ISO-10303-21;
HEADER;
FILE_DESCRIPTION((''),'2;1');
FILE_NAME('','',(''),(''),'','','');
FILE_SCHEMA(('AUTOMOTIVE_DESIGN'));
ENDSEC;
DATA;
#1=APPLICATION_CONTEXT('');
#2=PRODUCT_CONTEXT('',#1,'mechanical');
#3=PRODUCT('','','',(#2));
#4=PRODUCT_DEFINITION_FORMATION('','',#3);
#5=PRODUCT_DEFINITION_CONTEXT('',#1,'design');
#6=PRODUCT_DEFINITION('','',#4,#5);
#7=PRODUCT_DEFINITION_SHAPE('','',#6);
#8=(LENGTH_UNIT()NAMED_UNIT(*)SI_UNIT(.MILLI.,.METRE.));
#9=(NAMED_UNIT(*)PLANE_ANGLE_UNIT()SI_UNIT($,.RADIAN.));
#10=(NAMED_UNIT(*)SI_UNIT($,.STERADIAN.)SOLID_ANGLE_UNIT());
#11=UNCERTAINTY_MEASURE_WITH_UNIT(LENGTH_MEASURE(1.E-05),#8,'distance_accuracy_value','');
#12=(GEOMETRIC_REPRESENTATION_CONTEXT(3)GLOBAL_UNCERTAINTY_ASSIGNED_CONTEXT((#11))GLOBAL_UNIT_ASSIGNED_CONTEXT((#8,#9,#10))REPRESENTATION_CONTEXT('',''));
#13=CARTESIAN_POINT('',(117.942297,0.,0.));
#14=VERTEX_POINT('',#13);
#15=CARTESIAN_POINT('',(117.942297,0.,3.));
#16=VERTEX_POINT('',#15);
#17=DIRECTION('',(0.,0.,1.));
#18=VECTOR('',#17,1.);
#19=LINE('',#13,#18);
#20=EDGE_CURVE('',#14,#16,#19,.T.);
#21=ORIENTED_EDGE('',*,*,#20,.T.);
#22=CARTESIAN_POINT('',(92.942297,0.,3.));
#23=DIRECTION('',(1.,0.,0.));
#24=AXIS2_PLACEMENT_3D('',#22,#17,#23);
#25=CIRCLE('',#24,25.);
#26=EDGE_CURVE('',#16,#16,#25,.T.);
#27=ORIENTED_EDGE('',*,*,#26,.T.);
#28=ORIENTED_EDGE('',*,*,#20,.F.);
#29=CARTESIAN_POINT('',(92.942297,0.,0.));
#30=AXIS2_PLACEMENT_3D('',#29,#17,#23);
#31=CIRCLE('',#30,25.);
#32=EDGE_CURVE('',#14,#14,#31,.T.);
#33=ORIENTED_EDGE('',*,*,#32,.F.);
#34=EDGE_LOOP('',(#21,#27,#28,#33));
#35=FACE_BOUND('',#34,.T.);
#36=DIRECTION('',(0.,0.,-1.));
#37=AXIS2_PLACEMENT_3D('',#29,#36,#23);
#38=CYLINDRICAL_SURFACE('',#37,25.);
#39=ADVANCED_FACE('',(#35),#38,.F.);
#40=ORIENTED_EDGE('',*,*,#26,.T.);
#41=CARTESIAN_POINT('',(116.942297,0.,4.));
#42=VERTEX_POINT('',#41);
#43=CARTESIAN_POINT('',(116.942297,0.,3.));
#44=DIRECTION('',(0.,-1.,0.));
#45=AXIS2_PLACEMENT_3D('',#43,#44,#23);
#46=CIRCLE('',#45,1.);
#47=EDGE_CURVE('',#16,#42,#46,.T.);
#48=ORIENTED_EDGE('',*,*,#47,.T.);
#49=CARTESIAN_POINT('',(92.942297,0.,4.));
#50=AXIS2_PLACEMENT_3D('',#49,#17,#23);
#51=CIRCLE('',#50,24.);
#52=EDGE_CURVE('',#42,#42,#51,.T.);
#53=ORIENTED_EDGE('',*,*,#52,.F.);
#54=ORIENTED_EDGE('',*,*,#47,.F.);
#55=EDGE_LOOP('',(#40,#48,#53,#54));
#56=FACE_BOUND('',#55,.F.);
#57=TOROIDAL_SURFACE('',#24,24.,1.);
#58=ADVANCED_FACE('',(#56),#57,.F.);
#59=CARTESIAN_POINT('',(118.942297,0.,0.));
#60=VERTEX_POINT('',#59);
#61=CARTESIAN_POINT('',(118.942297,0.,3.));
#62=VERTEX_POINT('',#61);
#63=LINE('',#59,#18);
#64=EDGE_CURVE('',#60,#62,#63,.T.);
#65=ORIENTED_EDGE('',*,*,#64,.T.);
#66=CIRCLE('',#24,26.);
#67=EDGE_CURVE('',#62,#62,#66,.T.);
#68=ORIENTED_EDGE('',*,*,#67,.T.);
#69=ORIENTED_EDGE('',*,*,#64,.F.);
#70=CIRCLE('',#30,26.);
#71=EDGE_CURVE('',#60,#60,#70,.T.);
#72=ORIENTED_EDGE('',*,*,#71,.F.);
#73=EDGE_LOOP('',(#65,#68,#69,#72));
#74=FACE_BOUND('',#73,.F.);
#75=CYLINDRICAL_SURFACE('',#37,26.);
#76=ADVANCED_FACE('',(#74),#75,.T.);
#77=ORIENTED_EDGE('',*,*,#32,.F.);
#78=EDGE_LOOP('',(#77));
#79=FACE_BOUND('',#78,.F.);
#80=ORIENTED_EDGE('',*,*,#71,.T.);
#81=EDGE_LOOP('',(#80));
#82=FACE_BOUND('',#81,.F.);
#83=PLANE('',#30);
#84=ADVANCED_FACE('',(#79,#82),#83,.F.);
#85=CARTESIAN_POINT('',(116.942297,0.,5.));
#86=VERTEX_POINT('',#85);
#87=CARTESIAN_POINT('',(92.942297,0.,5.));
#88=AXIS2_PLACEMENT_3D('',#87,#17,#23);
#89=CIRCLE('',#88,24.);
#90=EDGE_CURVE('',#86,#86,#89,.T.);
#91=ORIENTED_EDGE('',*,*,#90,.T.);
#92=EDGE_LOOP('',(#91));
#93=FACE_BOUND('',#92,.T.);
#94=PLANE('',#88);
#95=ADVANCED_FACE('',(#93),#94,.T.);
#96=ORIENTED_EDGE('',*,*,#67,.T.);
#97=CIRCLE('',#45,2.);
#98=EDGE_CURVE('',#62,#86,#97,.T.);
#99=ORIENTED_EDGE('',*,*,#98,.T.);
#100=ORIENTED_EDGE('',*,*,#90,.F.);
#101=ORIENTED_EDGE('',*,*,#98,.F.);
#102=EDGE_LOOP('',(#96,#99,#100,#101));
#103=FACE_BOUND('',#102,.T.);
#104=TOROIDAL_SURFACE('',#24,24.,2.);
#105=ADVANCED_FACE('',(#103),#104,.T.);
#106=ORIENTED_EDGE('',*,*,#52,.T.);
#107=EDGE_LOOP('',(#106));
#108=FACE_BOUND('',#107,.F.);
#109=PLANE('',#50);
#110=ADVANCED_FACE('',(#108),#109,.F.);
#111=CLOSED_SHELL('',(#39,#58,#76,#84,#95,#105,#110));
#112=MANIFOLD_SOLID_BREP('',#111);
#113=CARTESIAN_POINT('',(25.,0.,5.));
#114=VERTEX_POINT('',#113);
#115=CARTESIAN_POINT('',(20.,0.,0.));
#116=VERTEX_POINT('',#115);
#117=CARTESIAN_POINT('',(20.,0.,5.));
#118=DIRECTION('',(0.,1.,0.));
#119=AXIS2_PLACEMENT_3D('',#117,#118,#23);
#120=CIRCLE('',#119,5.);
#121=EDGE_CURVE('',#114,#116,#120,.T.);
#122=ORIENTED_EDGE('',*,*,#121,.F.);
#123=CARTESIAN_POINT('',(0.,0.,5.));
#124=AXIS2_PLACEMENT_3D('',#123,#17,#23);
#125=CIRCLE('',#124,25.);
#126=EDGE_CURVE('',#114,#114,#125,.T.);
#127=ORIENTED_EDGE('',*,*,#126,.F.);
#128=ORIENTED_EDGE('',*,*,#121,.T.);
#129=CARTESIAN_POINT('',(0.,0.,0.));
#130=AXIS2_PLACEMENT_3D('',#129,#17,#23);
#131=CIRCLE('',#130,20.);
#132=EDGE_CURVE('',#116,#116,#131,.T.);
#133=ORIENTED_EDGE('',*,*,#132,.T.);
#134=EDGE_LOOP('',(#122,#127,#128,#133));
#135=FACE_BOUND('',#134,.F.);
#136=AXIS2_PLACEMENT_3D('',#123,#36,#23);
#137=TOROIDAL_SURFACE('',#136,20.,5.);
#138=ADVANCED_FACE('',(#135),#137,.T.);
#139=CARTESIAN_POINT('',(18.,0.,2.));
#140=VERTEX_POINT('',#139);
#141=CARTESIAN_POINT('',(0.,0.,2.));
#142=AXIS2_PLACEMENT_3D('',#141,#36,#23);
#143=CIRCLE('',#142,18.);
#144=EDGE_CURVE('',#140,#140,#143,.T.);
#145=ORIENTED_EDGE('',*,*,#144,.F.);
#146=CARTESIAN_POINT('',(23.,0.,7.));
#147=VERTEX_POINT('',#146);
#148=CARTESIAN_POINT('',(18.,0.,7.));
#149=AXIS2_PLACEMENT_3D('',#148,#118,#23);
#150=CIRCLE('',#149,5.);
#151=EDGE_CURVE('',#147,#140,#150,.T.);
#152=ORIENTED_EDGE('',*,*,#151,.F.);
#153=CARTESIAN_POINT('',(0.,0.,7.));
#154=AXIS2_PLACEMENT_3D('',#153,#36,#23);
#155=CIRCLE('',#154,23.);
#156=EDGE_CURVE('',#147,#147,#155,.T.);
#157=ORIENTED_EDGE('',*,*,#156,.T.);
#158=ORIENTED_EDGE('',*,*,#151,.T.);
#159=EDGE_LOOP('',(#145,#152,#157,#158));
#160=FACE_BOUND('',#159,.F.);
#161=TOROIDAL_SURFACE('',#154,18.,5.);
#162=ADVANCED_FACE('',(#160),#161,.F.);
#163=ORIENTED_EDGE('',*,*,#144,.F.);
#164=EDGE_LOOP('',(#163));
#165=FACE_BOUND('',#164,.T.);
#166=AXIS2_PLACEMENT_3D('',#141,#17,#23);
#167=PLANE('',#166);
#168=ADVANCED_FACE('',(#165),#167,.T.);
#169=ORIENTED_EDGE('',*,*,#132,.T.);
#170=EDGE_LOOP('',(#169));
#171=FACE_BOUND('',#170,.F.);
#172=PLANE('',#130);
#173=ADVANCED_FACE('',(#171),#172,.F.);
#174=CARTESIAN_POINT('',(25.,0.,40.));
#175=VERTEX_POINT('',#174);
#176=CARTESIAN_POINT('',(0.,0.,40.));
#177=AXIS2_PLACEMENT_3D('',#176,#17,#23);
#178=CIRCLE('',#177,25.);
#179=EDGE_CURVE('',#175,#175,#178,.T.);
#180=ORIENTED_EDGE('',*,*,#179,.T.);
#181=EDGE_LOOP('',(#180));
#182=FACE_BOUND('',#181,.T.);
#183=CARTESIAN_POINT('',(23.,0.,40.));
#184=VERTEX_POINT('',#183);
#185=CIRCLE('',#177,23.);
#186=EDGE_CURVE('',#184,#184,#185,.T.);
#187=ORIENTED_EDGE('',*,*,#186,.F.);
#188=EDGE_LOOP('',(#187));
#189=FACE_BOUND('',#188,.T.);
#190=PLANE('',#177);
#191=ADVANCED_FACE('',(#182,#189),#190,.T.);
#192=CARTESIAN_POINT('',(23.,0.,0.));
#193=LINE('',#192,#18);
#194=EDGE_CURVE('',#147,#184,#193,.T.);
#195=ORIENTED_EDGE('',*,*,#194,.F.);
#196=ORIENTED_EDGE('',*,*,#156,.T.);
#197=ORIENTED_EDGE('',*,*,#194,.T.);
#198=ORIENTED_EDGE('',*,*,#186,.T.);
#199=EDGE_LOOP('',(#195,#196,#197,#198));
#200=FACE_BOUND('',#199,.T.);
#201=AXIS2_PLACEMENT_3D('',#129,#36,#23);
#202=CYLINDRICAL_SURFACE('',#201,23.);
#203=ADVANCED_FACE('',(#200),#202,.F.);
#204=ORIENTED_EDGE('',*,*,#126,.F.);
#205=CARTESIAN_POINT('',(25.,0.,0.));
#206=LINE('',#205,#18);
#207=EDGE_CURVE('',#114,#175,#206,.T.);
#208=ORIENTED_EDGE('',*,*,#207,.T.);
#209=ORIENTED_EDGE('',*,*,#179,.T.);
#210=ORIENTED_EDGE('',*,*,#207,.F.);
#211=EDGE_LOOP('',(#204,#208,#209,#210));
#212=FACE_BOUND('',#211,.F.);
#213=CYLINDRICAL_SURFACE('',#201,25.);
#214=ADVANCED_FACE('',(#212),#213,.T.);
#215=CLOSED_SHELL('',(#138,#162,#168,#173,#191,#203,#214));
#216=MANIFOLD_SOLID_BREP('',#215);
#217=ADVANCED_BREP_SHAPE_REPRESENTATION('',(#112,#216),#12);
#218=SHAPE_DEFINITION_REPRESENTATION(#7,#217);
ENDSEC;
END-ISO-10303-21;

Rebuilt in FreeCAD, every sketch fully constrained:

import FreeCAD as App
import Part
import Sketcher


def edges_at(feature, points):
    """Names of the edges that pass closest to the given points."""
    edges = feature.Shape.Edges
    near = lambda p: min(range(len(edges)), key=lambda i: edges[i].distToShape(Part.Vertex(*p))[0])
    return sorted({f"Edge{near(p) + 1}" for p in points})


def faces_at(feature, points):
    """Names of the faces that lie closest to the given points."""
    faces = feature.Shape.Faces
    near = lambda p: min(range(len(faces)), key=lambda i: faces[i].distToShape(Part.Vertex(*p))[0])
    return sorted({f"Face{near(p) + 1}" for p in points})

doc = App.newDocument("Part")
body = doc.addObject("PartDesign::Body", "Body")

# Sketch on XY plane
sketch1 = body.newObject("Sketcher::SketchObject", "Sketch")
sketch1.AttachmentSupport = (doc.getObject("XY_Plane"), [""])
sketch1.MapMode = "FlatFace"
sketch1.addGeometry(Part.Circle(App.Vector(0, 0, 0), App.Vector(0, 0, 1), 25), False)
sketch1.addConstraint(Sketcher.Constraint("Coincident", 0, 3, -1, 1))
sketch1.addConstraint(Sketcher.Constraint("Diameter", 0, 50.0))
pad1 = body.newObject("PartDesign::Pad", "Pad")
pad1.Profile = sketch1
pad1.Length = 40
doc.recompute()

thickness = body.newObject("PartDesign::Thickness", "Thickness")
thickness.Base = (pad1, faces_at(pad1, [(0, 0, 40)]))
thickness.Value = 2
thickness.Reversed = True
thickness.Join = "Arc"
doc.recompute()

fillet = body.newObject("PartDesign::Fillet", "Fillet")
fillet.Base = (thickness, edges_at(thickness, [(-23, 0, 2)]))
fillet.Radius = 5
doc.recompute()

fillet2 = body.newObject("PartDesign::Fillet", "Fillet001")
fillet2.Base = (fillet, edges_at(fillet, [(-25, 0, 0)]))
fillet2.Radius = 5
body2 = doc.addObject("PartDesign::Body", "Body001")

# Sketch on XY plane
sketch2 = body2.newObject("Sketcher::SketchObject", "Sketch001")
sketch2.AttachmentSupport = (doc.getObject("XY_Plane001"), [""])
sketch2.MapMode = "FlatFace"
sketch2.addGeometry(Part.Circle(App.Vector(93, 0, 0), App.Vector(0, 0, 1), 26), False)
sketch2.addConstraint(Sketcher.Constraint("PointOnObject", 0, 3, -1))
sketch2.addConstraint(Sketcher.Constraint("Diameter", 0, 52.0))
sketch2.addConstraint(Sketcher.Constraint("DistanceX", -1, 1, 0, 3, 92.942297))
pad2 = body2.newObject("PartDesign::Pad", "Pad001")
pad2.Profile = sketch2
pad2.Length = 5
doc.recompute()

fillet3 = body2.newObject("PartDesign::Fillet", "Fillet002")
fillet3.Base = (pad2, edges_at(pad2, [(66.942, 0, 5)]))
fillet3.Radius = 2
doc.recompute()

thickness2 = body2.newObject("PartDesign::Thickness", "Thickness001")
thickness2.Base = (fillet3, faces_at(fillet3, [(92.942, 0, 0)]))
thickness2.Value = 1
thickness2.Reversed = True
thickness2.Join = "Arc"

doc.recompute()
